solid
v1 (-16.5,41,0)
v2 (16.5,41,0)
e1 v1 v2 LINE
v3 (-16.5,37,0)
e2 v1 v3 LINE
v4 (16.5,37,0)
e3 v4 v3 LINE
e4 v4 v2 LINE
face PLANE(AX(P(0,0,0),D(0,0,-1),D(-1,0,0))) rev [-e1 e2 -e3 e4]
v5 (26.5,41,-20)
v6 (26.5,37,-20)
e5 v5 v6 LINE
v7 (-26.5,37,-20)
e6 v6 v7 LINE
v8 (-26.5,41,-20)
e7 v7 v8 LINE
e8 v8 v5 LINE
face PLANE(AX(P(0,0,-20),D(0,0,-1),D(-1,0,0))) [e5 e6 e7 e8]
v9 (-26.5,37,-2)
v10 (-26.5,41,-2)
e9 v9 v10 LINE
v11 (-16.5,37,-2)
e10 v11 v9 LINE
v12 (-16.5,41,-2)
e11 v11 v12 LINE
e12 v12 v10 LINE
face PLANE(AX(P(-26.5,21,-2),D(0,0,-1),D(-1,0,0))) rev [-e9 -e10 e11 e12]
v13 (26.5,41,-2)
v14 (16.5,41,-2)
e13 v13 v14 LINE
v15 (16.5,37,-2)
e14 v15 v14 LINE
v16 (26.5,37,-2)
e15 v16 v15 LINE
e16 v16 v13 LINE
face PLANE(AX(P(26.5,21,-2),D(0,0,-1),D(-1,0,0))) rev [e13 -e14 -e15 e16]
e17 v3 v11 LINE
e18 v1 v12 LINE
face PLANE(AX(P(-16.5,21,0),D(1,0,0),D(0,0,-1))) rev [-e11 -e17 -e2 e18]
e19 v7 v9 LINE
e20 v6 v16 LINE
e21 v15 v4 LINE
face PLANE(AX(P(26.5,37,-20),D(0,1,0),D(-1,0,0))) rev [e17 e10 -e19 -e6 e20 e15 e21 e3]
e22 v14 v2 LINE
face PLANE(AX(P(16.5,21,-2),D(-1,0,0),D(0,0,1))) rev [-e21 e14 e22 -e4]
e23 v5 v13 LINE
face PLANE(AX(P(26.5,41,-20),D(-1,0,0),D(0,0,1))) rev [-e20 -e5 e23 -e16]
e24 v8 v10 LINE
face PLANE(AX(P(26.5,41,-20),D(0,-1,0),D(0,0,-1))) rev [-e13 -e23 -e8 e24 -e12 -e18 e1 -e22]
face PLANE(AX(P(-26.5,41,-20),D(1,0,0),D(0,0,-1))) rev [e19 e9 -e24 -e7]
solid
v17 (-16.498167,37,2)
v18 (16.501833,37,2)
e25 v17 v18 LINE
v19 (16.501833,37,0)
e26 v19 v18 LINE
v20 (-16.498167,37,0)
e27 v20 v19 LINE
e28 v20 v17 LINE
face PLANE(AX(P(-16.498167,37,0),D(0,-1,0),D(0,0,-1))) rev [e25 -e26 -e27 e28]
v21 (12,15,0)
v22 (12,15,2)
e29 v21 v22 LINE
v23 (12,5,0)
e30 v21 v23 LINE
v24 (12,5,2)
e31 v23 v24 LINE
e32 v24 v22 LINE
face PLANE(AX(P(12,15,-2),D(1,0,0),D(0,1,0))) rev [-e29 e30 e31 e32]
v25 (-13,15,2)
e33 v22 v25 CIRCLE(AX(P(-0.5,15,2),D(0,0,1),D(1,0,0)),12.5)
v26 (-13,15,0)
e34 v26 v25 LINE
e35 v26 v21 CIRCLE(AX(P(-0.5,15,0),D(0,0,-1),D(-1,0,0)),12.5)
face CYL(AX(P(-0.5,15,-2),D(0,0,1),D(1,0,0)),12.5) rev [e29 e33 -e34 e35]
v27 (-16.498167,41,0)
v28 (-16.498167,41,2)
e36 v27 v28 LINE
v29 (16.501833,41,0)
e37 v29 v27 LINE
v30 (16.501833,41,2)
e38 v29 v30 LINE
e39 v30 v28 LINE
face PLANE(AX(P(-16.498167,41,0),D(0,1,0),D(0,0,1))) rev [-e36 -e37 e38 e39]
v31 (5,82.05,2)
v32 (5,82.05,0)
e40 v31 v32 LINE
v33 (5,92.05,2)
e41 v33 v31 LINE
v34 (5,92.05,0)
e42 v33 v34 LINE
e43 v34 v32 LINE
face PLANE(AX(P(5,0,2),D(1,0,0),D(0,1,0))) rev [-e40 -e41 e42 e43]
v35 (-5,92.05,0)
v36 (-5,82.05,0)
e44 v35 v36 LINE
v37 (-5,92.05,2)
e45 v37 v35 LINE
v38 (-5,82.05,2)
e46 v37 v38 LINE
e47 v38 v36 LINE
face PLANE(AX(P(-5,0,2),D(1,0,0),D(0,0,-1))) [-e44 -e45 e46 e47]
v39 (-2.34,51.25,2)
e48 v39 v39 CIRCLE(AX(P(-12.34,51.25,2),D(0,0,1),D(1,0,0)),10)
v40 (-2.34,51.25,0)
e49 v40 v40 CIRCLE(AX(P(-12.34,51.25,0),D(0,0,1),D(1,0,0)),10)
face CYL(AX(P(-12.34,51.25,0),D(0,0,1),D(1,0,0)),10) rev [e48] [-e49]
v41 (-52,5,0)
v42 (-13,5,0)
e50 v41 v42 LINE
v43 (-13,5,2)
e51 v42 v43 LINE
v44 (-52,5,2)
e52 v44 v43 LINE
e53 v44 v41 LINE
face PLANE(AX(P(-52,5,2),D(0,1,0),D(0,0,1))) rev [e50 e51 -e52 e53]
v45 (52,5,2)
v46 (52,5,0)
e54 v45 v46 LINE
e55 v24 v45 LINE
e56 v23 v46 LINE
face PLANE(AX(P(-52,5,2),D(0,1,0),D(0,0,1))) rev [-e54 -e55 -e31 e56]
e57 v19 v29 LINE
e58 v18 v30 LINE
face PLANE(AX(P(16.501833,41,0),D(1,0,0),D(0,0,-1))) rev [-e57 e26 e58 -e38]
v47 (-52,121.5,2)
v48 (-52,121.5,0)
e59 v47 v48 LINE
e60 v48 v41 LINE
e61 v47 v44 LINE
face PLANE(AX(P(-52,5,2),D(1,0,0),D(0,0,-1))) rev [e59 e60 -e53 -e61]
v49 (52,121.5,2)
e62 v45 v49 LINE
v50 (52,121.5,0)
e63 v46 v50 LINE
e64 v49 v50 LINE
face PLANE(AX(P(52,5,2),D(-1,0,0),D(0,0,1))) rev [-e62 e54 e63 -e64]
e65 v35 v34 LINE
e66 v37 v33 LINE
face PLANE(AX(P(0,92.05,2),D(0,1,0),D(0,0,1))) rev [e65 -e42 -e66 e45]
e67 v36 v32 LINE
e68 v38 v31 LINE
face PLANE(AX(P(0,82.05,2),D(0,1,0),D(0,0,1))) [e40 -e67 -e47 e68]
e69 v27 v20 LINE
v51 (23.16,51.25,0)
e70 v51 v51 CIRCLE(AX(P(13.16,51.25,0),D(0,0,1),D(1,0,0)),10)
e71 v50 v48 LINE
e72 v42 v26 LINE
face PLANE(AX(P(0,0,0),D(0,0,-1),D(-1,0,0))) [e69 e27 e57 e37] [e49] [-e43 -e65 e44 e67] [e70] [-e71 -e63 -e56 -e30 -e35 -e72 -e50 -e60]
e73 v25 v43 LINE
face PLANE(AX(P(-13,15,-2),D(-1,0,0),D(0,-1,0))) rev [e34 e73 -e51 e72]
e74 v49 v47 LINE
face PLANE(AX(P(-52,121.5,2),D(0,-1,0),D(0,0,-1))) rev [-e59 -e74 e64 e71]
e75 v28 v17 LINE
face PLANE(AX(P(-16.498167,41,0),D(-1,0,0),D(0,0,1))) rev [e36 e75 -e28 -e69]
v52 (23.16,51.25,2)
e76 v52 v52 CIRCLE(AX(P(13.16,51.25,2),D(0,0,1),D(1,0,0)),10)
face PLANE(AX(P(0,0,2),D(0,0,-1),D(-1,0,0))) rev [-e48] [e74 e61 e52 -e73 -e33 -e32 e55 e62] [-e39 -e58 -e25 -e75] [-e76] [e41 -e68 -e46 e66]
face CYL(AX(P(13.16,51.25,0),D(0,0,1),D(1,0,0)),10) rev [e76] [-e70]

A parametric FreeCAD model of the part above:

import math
import FreeCAD as App
import Part
import Sketcher
Q = App.Units.Quantity

doc = App.newDocument("Part")
body = doc.addObject("PartDesign::Body", "Body")

# Sketch on XY plane
sketch1 = body.newObject("Sketcher::SketchObject", "Sketch")
sketch1.AttachmentSupport = (doc.getObject("XY_Plane"), [""])
sketch1.MapMode = "FlatFace"
sketch1.addGeometry([
    Part.LineSegment(App.Vector(-52, 122, 0), App.Vector(-52, 5, 0)),
    Part.LineSegment(App.Vector(-52, 5, 0), App.Vector(52, 5, 0)),
    Part.LineSegment(App.Vector(52, 5, 0), App.Vector(52, 122, 0)),
    Part.LineSegment(App.Vector(52, 122, 0), App.Vector(-52, 122, 0)),
], False)
sketch1.addConstraint([
    Sketcher.Constraint("Coincident", 0, 2, 1, 1),
    Sketcher.Constraint("Coincident", 1, 2, 2, 1),
    Sketcher.Constraint("Coincident", 2, 2, 3, 1),
    Sketcher.Constraint("Coincident", 3, 2, 0, 1),
    Sketcher.Constraint("Vertical", 0),
    Sketcher.Constraint("Horizontal", 1),
    Sketcher.Constraint("Vertical", 2),
    Sketcher.Constraint("Horizontal", 3),
    Sketcher.Constraint("DistanceX", 1, 1, 1, 2, Q("104 mm")),
    Sketcher.Constraint("DistanceY", 0, 2, 0, 1, Q("116.5 mm")),
    Sketcher.Constraint("DistanceX", 0, 2, -1, 1, Q("52 mm")),
    Sketcher.Constraint("DistanceY", -1, 1, 0, 2, Q("5 mm")),
])
pad1 = body.newObject("PartDesign::Pad", "Pad")
pad1.Profile = sketch1
pad1.Length = 2

# Sketch on XY plane
sketch2 = body.newObject("Sketcher::SketchObject", "Sketch001")
sketch2.AttachmentSupport = (doc.getObject("XY_Plane"), [""])
sketch2.MapMode = "FlatFace"
sketch2.AttachmentOffset = App.Placement(App.Vector(0, 0, 2), App.Rotation())
sketch2.addGeometry([
    Part.LineSegment(App.Vector(-13, 15, 0), App.Vector(-13, 5, 0)),
    Part.LineSegment(App.Vector(-13, 5, 0), App.Vector(12, 5, 0)),
    Part.LineSegment(App.Vector(12, 5, 0), App.Vector(12, 15, 0)),
    Part.ArcOfCircle(Part.Circle(App.Vector(0, 15, 0), App.Vector(0, 0, 1), 12), math.radians(0), math.radians(180)),
], False)
sketch2.addConstraint([
    Sketcher.Constraint("Coincident", 0, 2, 1, 1),
    Sketcher.Constraint("Coincident", 1, 2, 2, 1),
    Sketcher.Constraint("Tangent", 2, 2, 3, 1),
    Sketcher.Constraint("Tangent", 3, 2, 0, 1),
    Sketcher.Constraint("Vertical", 0),
    Sketcher.Constraint("Horizontal", 1),
    Sketcher.Constraint("Vertical", 2),
    Sketcher.Constraint("Radius", 3, Q("12.5 mm")),
    Sketcher.Constraint("DistanceY", 0, 2, 0, 1, Q("10 mm")),
    Sketcher.Constraint("DistanceY", -1, 1, 3, 3, Q("15 mm")),
    Sketcher.Constraint("DistanceX", 0, 2, -1, 1, Q("13 mm")),
])
pocket1 = body.newObject("PartDesign::Pocket", "Pocket")
pocket1.Profile = sketch2
pocket1.Length = 4

# Sketch on XY plane
sketch3 = body.newObject("Sketcher::SketchObject", "Sketch002")
sketch3.AttachmentSupport = (doc.getObject("XY_Plane"), [""])
sketch3.MapMode = "FlatFace"
sketch3.AttachmentOffset = App.Placement(App.Vector(0, 0, 2), App.Rotation())
sketch3.addGeometry([
    Part.LineSegment(App.Vector(-16.5, 41, 0), App.Vector(-16.5, 37, 0)),
    Part.LineSegment(App.Vector(-16.5, 37, 0), App.Vector(16.5, 37, 0)),
    Part.LineSegment(App.Vector(16.5, 37, 0), App.Vector(16.5, 41, 0)),
    Part.LineSegment(App.Vector(16.5, 41, 0), App.Vector(-16.5, 41, 0)),
], False)
sketch3.addConstraint([
    Sketcher.Constraint("Coincident", 0, 2, 1, 1),
    Sketcher.Constraint("Coincident", 1, 2, 2, 1),
    Sketcher.Constraint("Coincident", 2, 2, 3, 1),
    Sketcher.Constraint("Coincident", 3, 2, 0, 1),
    Sketcher.Constraint("Vertical", 0),
    Sketcher.Constraint("Horizontal", 1),
    Sketcher.Constraint("Vertical", 2),
    Sketcher.Constraint("Horizontal", 3),
    Sketcher.Constraint("DistanceX", 1, 1, 1, 2, Q("33 mm")),
    Sketcher.Constraint("DistanceY", 0, 2, 0, 1, Q("4 mm")),
    Sketcher.Constraint("DistanceY", -1, 1, 0, 2, Q("37 mm")),
    Sketcher.Constraint("DistanceX", 0, 2, -1, 1, Q("16.498167 mm")),
])
pocket2 = body.newObject("PartDesign::Pocket", "Pocket001")
pocket2.Profile = sketch3
pocket2.Length = 2

# Sketch on XY plane
sketch4 = body.newObject("Sketcher::SketchObject", "Sketch003")
sketch4.AttachmentSupport = (doc.getObject("XY_Plane"), [""])
sketch4.MapMode = "FlatFace"
sketch4.AttachmentOffset = App.Placement(App.Vector(0, 0, 2), App.Rotation())
sketch4.addGeometry([
    Part.Circle(App.Vector(-12, 51, 0), App.Vector(0, 0, 1), 10),
    Part.Circle(App.Vector(13, 51, 0), App.Vector(0, 0, 1), 10),
], False)
sketch4.addConstraint([
    Sketcher.Constraint("Equal", 0, 1),
    Sketcher.Constraint("Horizontal", 0, 3, 1, 3),
    Sketcher.Constraint("Diameter", 0, Q("20 mm")),
    Sketcher.Constraint("DistanceX", 0, 3, 1, 3, Q("25.5 mm")),
    Sketcher.Constraint("DistanceX", 0, 3, -1, 1, Q("12.34 mm")),
    Sketcher.Constraint("DistanceY", -1, 1, 0, 3, Q("51.25 mm")),
])
pocket3 = body.newObject("PartDesign::Pocket", "Pocket002")
pocket3.Profile = sketch4
pocket3.Length = 2

# Sketch on XY plane
sketch5 = body.newObject("Sketcher::SketchObject", "Sketch004")
sketch5.AttachmentSupport = (doc.getObject("XY_Plane"), [""])
sketch5.MapMode = "FlatFace"
sketch5.addGeometry([
    Part.LineSegment(App.Vector(-5, 82, 0), App.Vector(-5, 92, 0)),
    Part.LineSegment(App.Vector(-5, 92, 0), App.Vector(5, 92, 0)),
    Part.LineSegment(App.Vector(5, 92, 0), App.Vector(5, 82, 0)),
    Part.LineSegment(App.Vector(5, 82, 0), App.Vector(-5, 82, 0)),
], False)
sketch5.addConstraint([
    Sketcher.Constraint("Coincident", 0, 2, 1, 1),
    Sketcher.Constraint("Coincident", 1, 2, 2, 1),
    Sketcher.Constraint("Coincident", 2, 2, 3, 1),
    Sketcher.Constraint("Coincident", 3, 2, 0, 1),
    Sketcher.Constraint("Vertical", 0),
    Sketcher.Constraint("Horizontal", 1),
    Sketcher.Constraint("Vertical", 2),
    Sketcher.Constraint("Horizontal", 3),
    Sketcher.Constraint("Equal", 3, 0),
    Sketcher.Constraint("DistanceX", 1, 1, 1, 2, Q("10 mm")),
    Sketcher.Constraint("DistanceX", 0, 2, -1, 1, Q("5 mm")),
    Sketcher.Constraint("DistanceY", -1, 1, 0, 2, Q("92.05 mm")),
])
pocket4 = body.newObject("PartDesign::Pocket", "Pocket003")
pocket4.Profile = sketch5
pocket4.Length = 2
pocket4.Reversed = True
body2 = doc.addObject("PartDesign::Body", "Body001")

# Sketch on XY plane
sketch6 = body2.newObject("Sketcher::SketchObject", "Sketch005")
sketch6.AttachmentSupport = (doc.getObject("XY_Plane001"), [""])
sketch6.MapMode = "FlatFace"
sketch6.addGeometry([
    Part.LineSegment(App.Vector(26.5, 41, 0), App.Vector(26.5, 37, 0)),
    Part.LineSegment(App.Vector(26.5, 37, 0), App.Vector(-26.5, 37, 0)),
    Part.LineSegment(App.Vector(-26.5, 37, 0), App.Vector(-26.5, 41, 0)),
    Part.LineSegment(App.Vector(-26.5, 41, 0), App.Vector(26.5, 41, 0)),
], False)
sketch6.addConstraint([
    Sketcher.Constraint("Coincident", 0, 2, 1, 1),
    Sketcher.Constraint("Coincident", 1, 2, 2, 1),
    Sketcher.Constraint("Coincident", 2, 2, 3, 1),
    Sketcher.Constraint("Coincident", 3, 2, 0, 1),
    Sketcher.Constraint("Vertical", 0),
    Sketcher.Constraint("Horizontal", 1),
    Sketcher.Constraint("Vertical", 2),
    Sketcher.Constraint("Horizontal", 3),
    Sketcher.Constraint("DistanceX", 1, 2, 1, 1, Q("53 mm")),
    Sketcher.Constraint("DistanceY", 0, 2, 0, 1, Q("4 mm")),
    Sketcher.Constraint("DistanceY", -1, 1, 0, 2, Q("37 mm")),
    Sketcher.Constraint("DistanceX", -1, 1, 0, 2, Q("26.5 mm")),
])
pad2 = body2.newObject("PartDesign::Pad", "Pad001")
pad2.Profile = sketch6
pad2.Length = 20
pad2.Reversed = True

# Sketch on XZ plane
sketch7 = body2.newObject("Sketcher::SketchObject", "Sketch006")
sketch7.AttachmentSupport = (doc.getObject("XZ_Plane001"), [""])
sketch7.MapMode = "FlatFace"
sketch7.AttachmentOffset = App.Placement(App.Vector(0, 0, -41), App.Rotation())
sketch7.addGeometry([
    Part.LineSegment(App.Vector(16.5, -2, 0), App.Vector(16.5, 0, 0)),  # 0
    Part.LineSegment(App.Vector(16.5, 0, 0), App.Vector(26.5, 0, 0)),  # 1
    Part.LineSegment(App.Vector(26.5, 0, 0), App.Vector(26.5, -2, 0)),  # 2
    Part.LineSegment(App.Vector(26.5, -2, 0), App.Vector(16.5, -2, 0)),  # 3
    Part.LineSegment(App.Vector(-26.5, -2, 0), App.Vector(-26.5, 0, 0)),  # 4
    Part.LineSegment(App.Vector(-26.5, 0, 0), App.Vector(-16.5, 0, 0)),  # 5
    Part.LineSegment(App.Vector(-16.5, 0, 0), App.Vector(-16.5, -2, 0)),  # 6
    Part.LineSegment(App.Vector(-16.5, -2, 0), App.Vector(-26.5, -2, 0)),  # 7
], False)
sketch7.addConstraint([
    Sketcher.Constraint("Coincident", 0, 2, 1, 1),
    Sketcher.Constraint("Coincident", 1, 2, 2, 1),
    Sketcher.Constraint("Coincident", 2, 2, 3, 1),
    Sketcher.Constraint("Coincident", 3, 2, 0, 1),
    Sketcher.Constraint("Coincident", 4, 2, 5, 1),
    Sketcher.Constraint("Coincident", 5, 2, 6, 1),
    Sketcher.Constraint("Coincident", 6, 2, 7, 1),
    Sketcher.Constraint("Coincident", 7, 2, 4, 1),
    Sketcher.Constraint("Vertical", 0),
    Sketcher.Constraint("Horizontal", 1),
    Sketcher.Constraint("Vertical", 2),
    Sketcher.Constraint("Horizontal", 3),
    Sketcher.Constraint("Vertical", 4),
    Sketcher.Constraint("Horizontal", 5),
    Sketcher.Constraint("Vertical", 6),
    Sketcher.Constraint("Horizontal", 7),
    Sketcher.Constraint("Symmetric", 1, 2, 4, 2, -1, 1),
    Sketcher.Constraint("Symmetric", 0, 2, 5, 2, -2),
    Sketcher.Constraint("Horizontal", 3, 2, 6, 2),
    Sketcher.Constraint("DistanceX", 1, 1, 1, 2, Q("10 mm")),
    Sketcher.Constraint("DistanceY", 0, 1, 0, 2, Q("2 mm")),
    Sketcher.Constraint("DistanceX", 4, 2, 0, 2, Q("43 mm")),
])
pocket5 = body2.newObject("PartDesign::Pocket", "Pocket004")
pocket5.Profile = sketch7
pocket5.Length = 20
pocket5.Reversed = True

doc.recompute()
